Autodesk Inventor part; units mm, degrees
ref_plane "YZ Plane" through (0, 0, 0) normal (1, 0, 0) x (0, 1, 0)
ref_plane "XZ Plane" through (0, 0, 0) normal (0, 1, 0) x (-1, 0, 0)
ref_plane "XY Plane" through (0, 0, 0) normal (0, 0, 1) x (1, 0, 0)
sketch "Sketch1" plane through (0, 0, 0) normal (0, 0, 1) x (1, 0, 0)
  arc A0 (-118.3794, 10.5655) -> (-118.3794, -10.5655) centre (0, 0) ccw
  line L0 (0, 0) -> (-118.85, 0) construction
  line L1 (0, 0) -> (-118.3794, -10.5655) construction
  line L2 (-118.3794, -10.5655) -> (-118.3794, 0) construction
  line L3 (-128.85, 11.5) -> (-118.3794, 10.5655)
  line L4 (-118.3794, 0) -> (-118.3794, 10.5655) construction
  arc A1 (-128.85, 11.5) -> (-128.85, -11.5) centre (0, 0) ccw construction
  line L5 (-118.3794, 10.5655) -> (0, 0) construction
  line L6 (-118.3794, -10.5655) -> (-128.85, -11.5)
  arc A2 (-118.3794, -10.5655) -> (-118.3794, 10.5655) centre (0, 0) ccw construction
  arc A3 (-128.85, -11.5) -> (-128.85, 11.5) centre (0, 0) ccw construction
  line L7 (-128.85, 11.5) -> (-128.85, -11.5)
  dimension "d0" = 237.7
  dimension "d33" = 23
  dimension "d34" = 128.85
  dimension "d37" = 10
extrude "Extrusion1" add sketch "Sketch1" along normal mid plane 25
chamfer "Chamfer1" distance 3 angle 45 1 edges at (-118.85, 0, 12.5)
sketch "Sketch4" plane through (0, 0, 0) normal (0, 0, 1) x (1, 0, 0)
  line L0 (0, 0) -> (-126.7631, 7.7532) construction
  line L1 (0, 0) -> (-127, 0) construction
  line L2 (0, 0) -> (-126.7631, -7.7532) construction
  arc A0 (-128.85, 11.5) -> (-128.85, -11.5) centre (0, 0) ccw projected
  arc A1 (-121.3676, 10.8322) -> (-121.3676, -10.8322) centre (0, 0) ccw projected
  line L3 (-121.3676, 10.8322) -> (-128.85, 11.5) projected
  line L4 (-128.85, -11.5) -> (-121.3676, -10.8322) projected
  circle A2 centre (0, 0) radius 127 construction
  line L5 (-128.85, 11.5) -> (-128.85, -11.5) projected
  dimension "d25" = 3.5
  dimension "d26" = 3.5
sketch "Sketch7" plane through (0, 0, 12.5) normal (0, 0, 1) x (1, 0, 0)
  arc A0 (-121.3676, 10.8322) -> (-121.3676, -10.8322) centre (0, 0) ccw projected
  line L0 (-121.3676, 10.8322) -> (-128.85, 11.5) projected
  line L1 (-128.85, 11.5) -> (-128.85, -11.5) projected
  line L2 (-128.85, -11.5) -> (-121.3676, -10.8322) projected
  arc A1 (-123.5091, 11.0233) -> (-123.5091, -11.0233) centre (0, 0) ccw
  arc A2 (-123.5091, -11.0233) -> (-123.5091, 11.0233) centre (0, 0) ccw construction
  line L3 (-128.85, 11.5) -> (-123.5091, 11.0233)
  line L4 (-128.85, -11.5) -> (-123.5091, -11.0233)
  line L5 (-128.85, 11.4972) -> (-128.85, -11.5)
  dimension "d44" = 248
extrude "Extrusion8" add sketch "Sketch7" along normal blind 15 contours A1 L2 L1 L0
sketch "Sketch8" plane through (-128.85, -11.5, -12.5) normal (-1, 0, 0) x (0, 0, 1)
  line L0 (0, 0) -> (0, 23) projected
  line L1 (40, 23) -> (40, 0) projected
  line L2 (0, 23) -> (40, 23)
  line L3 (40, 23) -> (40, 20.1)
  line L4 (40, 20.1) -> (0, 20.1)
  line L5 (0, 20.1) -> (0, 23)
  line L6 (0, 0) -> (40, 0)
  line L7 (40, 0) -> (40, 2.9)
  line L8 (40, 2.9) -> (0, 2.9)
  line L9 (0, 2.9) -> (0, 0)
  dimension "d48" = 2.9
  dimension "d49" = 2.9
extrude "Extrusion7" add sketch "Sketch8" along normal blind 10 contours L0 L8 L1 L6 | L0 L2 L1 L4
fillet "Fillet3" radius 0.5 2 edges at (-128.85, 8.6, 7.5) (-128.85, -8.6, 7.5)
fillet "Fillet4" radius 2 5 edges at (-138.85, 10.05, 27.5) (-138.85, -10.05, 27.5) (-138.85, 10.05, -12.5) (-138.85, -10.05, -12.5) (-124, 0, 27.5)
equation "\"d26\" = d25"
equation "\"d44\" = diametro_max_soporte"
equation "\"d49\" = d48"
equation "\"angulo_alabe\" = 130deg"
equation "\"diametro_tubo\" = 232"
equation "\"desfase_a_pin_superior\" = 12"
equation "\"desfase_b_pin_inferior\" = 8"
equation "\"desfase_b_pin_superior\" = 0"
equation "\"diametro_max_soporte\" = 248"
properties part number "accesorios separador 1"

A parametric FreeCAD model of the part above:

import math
import FreeCAD as App
import Part
import Sketcher
from FreeCAD import Vector
Q = App.Units.Quantity


def edges_at(feature, points):
    """Names of the edges that pass closest to the given points."""
    edges = feature.Shape.Edges
    near = lambda p: min(range(len(edges)), key=lambda i: edges[i].distToShape(Part.Vertex(*p))[0])
    return sorted({f"Edge{near(p) + 1}" for p in points})


def add_polygon(sketch, points):
    """Adds a closed chain of lines whose ends are joined by coincident constraints."""
    first, n = sketch.GeometryCount, len(points)
    for a, b in zip(points, points[1:] + points[:1]):
        sketch.addGeometry(Part.LineSegment(App.Vector(*a, 0), App.Vector(*b, 0)), False)
    for i in range(n):
        sketch.addConstraint(Sketcher.Constraint("Coincident", first + i, 2, first + (i + 1) % n, 1))

doc = App.newDocument("Part")
params = doc.addObject("Spreadsheet::Sheet", "Params")
for row, (alias, value) in enumerate([
    ("sketch1_height", "23 mm"),
    ("sketch1_radius", "118.85 mm"),
    ("pad1_length", "25 mm"),
    ("chamfer_size", "3 mm"),
    ("sketch2_radius", "124 mm"),
    ("sketch2_height", "23 mm"),
    ("pad2_length", "15 mm"),
    ("sketch3_width", "2.9 mm"),
    ("sketch3_height", "40 mm"),
    ("pad3_length", "10 mm"),
    ("fillet_radius", "0.5 mm"),
    ("fillet2_radius", "2 mm"),
], start=1):
    params.set(f"A{row}", alias)
    params.set(f"B{row}", "=" + value)
    params.setAlias(f"B{row}", alias)

body = doc.addObject("PartDesign::Body", "Body")

# Sketch on XY plane
sketch1 = body.newObject("Sketcher::SketchObject", "Sketch")
sketch1.AttachmentSupport = (doc.getObject("XY_Plane"), [""])
sketch1.MapMode = "FlatFace"
sketch1.addGeometry(Part.ArcOfCircle(Part.Circle(Vector(0, 0, 0), Vector(0, 0, 1), 119), math.radians(174.9), math.radians(185.1)), False)
sketch1.addGeometry(Part.LineSegment(Vector(-118, 11, 0), Vector(-129, 12, 0)), False)
sketch1.addGeometry(Part.LineSegment(Vector(-129, 12, 0), Vector(-129, -12, 0)), False)
sketch1.addGeometry(Part.LineSegment(Vector(-129, -12, 0), Vector(-118, -11, 0)), False)
sketch1.addConstraint(Sketcher.Constraint("Coincident", 0, 1, 1, 1))
sketch1.addConstraint(Sketcher.Constraint("Coincident", 1, 2, 2, 1))
sketch1.addConstraint(Sketcher.Constraint("Coincident", 2, 2, 3, 1))
sketch1.addConstraint(Sketcher.Constraint("Coincident", 3, 2, 0, 2))
sketch1.addConstraint(Sketcher.Constraint("Vertical", 2))
sketch1.addConstraint(Sketcher.Constraint("Coincident", 0, 3, -1, 1))
sketch1.addConstraint(Sketcher.Constraint("Vertical", 0, 1, 3, 2))
sketch1.addConstraint(Sketcher.Constraint("Equal", 1, 3))
sketch1.addConstraint(Sketcher.Constraint("DistanceY", 2, 2, 2, 1, 23.0))
sketch1.addConstraint(Sketcher.Constraint("Radius", 0, 118.85))
sketch1.addConstraint(Sketcher.Constraint("DistanceX", 1, 2, -1, 1, 128.85))
sketch1.addConstraint(Sketcher.Constraint("Angle", 1, Q("174.8999 deg")))
sketch1.setExpression("Constraints[8]", "Params.sketch1_height")
sketch1.setExpression("Constraints[9]", "Params.sketch1_radius")
pad1 = body.newObject("PartDesign::Pad", "Pad")
pad1.Profile = sketch1
pad1.setExpression("Length", "Params.pad1_length")
pad1.Midplane = True
doc.recompute()

chamfer = body.newObject("PartDesign::Chamfer", "Chamfer")
chamfer.Base = (pad1, edges_at(pad1, [(-118.85, 0, 12.5)]))
chamfer.setExpression("Size", "Params.chamfer_size")

# Sketch on XY plane
sketch2 = body.newObject("Sketcher::SketchObject", "Sketch001")
sketch2.AttachmentSupport = (doc.getObject("XY_Plane"), [""])
sketch2.MapMode = "FlatFace"
sketch2.AttachmentOffset = App.Placement(Vector(0, 0, 12.5), App.Rotation())
sketch2.addGeometry(Part.ArcOfCircle(Part.Circle(Vector(0, 0, 0), Vector(0, 0, 1), 124), math.radians(174.9), math.radians(185.1)), False)
sketch2.addGeometry(Part.LineSegment(Vector(-124, 11, 0), Vector(-129, 12, 0)), False)
sketch2.addGeometry(Part.LineSegment(Vector(-129, 12, 0), Vector(-129, -12, 0)), False)
sketch2.addGeometry(Part.LineSegment(Vector(-129, -12, 0), Vector(-124, -11, 0)), False)
sketch2.addConstraint(Sketcher.Constraint("Coincident", 0, 1, 1, 1))
sketch2.addConstraint(Sketcher.Constraint("Coincident", 1, 2, 2, 1))
sketch2.addConstraint(Sketcher.Constraint("Coincident", 2, 2, 3, 1))
sketch2.addConstraint(Sketcher.Constraint("Coincident", 3, 2, 0, 2))
sketch2.addConstraint(Sketcher.Constraint("Vertical", 2))
sketch2.addConstraint(Sketcher.Constraint("Coincident", 0, 3, -1, 1))
sketch2.addConstraint(Sketcher.Constraint("Vertical", 0, 1, 3, 2))
sketch2.addConstraint(Sketcher.Constraint("Equal", 1, 3))
sketch2.addConstraint(Sketcher.Constraint("Radius", 0, 124.0))
sketch2.addConstraint(Sketcher.Constraint("DistanceY", 2, 2, 2, 1, 23.0))
sketch2.addConstraint(Sketcher.Constraint("Angle", 1, Q("174.9 deg")))
sketch2.addConstraint(Sketcher.Constraint("DistanceX", 1, 2, -1, 1, 128.85))
sketch2.setExpression("Constraints[8]", "Params.sketch2_radius")
sketch2.setExpression("Constraints[9]", "Params.sketch2_height")
pad2 = body.newObject("PartDesign::Pad", "Pad001")
pad2.Profile = sketch2
pad2.setExpression("Length", "Params.pad2_length")

# Sketch on YZ plane
sketch3 = body.newObject("Sketcher::SketchObject", "Sketch002")
sketch3.AttachmentSupport = (doc.getObject("YZ_Plane"), [""])
sketch3.MapMode = "FlatFace"
sketch3.AttachmentOffset = App.Placement(Vector(0, 0, -128.85), App.Rotation())
add_polygon(sketch3, [(-8.6, -12.5), (-11.5, -12.5), (-11.5, 27.5), (-8.6, 27.5)])  # lines 0-3
add_polygon(sketch3, [(11.5, -12.5), (8.6, -12.5), (8.6, 27.5), (11.5, 27.5)])  # lines 4-7
sketch3.addConstraint(Sketcher.Constraint("Horizontal", 0))
sketch3.addConstraint(Sketcher.Constraint("Vertical", 1))
sketch3.addConstraint(Sketcher.Constraint("Horizontal", 2))
sketch3.addConstraint(Sketcher.Constraint("Vertical", 3))
sketch3.addConstraint(Sketcher.Constraint("Horizontal", 4))
sketch3.addConstraint(Sketcher.Constraint("Vertical", 5))
sketch3.addConstraint(Sketcher.Constraint("Horizontal", 6))
sketch3.addConstraint(Sketcher.Constraint("Vertical", 7))
sketch3.addConstraint(Sketcher.Constraint("Symmetric", 3, 2, 4, 2, -2))
sketch3.addConstraint(Sketcher.Constraint("Symmetric", 1, 2, 6, 2, -2))
sketch3.addConstraint(Sketcher.Constraint("DistanceX", 0, 2, 0, 1, 2.9))
sketch3.addConstraint(Sketcher.Constraint("DistanceY", 1, 1, 1, 2, 40.0))
sketch3.addConstraint(Sketcher.Constraint("DistanceX", 1, 2, 6, 2, 23.0))
sketch3.addConstraint(Sketcher.Constraint("DistanceY", 0, 2, -1, 1, 12.5))
sketch3.setExpression("Constraints[18]", "Params.sketch3_width")
sketch3.setExpression("Constraints[19]", "Params.sketch3_height")
pad3 = body.newObject("PartDesign::Pad", "Pad002")
pad3.Profile = sketch3
pad3.setExpression("Length", "Params.pad3_length")
pad3.Reversed = True
doc.recompute()

fillet = body.newObject("PartDesign::Fillet", "Fillet")
fillet.Base = (pad3, edges_at(pad3, [(-128.85, 8.6, 7.5), (-128.85, -8.6, 7.5)]))
fillet.setExpression("Radius", "Params.fillet_radius")
doc.recompute()

fillet2 = body.newObject("PartDesign::Fillet", "Fillet001")
fillet2.Base = (fillet, edges_at(fillet, [
    (-138.85, 10.05, 27.5),
    (-138.85, -10.05, 27.5),
    (-138.85, 10.05, -12.5),
    (-138.85, -10.05, -12.5),
    (-124, 0, 27.5),
]))
fillet2.setExpression("Radius", "Params.fillet2_radius")

doc.recompute()
